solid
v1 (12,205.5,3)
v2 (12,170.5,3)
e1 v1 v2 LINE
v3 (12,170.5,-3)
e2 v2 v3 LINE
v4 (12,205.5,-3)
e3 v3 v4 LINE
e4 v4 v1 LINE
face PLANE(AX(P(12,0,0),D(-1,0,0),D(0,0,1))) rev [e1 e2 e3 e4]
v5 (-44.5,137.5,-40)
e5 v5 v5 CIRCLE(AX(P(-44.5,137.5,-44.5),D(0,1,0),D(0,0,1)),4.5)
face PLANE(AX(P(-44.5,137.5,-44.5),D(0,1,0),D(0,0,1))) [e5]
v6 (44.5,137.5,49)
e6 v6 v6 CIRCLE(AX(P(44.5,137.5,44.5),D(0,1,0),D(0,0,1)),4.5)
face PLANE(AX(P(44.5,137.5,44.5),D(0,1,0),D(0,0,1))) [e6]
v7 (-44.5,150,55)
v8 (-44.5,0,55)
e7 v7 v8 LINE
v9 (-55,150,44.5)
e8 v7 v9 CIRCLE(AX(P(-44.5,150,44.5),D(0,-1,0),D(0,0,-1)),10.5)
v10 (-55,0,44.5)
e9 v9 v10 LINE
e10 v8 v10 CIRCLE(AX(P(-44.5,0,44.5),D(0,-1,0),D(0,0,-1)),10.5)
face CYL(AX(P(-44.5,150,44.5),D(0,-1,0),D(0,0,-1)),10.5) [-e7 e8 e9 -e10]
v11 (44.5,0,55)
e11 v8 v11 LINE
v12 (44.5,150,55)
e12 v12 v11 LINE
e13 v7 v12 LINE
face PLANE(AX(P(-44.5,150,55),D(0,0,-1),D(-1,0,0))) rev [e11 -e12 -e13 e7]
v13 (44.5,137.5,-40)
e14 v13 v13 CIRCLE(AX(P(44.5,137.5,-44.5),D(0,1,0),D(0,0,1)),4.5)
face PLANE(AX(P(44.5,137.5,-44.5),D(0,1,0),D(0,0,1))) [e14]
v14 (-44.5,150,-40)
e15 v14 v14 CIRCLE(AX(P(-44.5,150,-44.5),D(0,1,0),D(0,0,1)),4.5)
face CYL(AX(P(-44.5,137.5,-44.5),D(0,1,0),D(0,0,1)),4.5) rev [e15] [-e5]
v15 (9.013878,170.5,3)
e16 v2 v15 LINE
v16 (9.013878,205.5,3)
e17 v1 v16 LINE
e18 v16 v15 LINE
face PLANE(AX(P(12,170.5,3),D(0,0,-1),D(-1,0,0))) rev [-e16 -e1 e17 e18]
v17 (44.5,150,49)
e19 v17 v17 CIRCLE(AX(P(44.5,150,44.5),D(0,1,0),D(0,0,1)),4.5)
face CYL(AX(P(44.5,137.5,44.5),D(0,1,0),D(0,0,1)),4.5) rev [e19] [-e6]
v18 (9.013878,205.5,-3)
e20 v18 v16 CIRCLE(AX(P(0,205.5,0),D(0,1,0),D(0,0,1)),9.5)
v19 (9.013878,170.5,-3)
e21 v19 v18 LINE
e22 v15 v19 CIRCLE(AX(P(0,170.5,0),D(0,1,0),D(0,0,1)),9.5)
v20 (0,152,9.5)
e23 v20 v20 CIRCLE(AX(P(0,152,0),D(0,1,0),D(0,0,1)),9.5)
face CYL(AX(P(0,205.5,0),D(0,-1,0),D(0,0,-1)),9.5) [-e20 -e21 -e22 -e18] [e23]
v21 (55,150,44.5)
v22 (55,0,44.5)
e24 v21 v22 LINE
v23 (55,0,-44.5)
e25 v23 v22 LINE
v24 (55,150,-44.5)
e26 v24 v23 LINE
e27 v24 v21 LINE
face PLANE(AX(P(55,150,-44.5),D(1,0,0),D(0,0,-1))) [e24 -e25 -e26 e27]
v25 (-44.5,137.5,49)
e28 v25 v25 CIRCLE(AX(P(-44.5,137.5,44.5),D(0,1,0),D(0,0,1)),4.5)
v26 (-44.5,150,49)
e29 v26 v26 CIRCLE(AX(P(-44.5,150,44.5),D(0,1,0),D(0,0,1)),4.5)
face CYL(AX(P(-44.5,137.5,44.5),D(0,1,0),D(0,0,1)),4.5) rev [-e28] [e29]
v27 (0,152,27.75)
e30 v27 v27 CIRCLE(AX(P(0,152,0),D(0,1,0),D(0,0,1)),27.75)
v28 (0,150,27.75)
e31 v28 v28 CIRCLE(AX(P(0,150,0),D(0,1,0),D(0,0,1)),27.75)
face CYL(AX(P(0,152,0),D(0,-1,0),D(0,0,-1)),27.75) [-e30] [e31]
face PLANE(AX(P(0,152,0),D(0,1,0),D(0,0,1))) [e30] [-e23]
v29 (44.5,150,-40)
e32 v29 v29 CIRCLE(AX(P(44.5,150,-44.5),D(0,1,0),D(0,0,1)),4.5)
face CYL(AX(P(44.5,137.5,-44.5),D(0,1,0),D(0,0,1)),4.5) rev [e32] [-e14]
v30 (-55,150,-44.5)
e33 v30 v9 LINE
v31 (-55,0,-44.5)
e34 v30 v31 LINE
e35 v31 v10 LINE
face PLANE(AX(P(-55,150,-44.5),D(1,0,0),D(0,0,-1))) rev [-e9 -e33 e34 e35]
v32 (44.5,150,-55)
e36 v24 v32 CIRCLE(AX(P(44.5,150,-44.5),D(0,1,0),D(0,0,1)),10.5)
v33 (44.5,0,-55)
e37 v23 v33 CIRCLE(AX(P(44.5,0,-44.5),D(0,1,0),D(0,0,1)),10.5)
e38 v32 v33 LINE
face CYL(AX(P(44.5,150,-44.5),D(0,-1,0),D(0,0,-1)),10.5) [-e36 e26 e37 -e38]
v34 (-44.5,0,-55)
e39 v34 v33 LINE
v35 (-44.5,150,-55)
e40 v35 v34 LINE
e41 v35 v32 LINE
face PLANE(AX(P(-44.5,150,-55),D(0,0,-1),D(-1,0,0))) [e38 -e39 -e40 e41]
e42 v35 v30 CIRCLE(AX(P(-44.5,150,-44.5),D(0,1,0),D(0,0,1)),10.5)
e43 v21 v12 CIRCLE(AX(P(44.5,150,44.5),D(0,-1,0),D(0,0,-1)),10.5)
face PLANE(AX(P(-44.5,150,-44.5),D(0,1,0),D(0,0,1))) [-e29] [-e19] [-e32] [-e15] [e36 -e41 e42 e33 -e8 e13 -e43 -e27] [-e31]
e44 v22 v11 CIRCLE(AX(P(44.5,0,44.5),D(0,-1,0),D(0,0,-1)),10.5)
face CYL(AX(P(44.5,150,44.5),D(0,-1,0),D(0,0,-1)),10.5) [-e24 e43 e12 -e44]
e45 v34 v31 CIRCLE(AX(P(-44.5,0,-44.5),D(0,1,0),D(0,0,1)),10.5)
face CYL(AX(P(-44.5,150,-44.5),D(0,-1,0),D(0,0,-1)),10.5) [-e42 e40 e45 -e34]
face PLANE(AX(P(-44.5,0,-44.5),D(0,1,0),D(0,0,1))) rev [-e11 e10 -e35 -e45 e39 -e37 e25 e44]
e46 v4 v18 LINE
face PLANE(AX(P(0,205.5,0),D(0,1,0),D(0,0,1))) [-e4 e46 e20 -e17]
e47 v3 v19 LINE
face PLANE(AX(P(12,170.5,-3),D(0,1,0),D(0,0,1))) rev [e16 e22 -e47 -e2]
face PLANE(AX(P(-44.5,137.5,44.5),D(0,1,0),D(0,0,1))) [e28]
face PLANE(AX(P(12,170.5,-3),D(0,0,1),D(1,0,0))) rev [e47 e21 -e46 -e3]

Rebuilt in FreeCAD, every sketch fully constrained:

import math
import FreeCAD as App
import Part
import Sketcher

V = App.Vector
Q = App.Units.Quantity

doc = App.newDocument("Part")
body = doc.addObject("PartDesign::Body", "Body")

sketch1 = doc.addObject("Sketcher::SketchObject", "Sketch")
body.addObject(sketch1)
sketch1.AttachmentSupport = (doc.XZ_Plane, [""])
sketch1.MapMode = "FlatFace"
sketch1.addGeometry(Part.LineSegment(V(44, -55, 0), V(-44, -55, 0)), False)
sketch1.addGeometry(Part.ArcOfCircle(Part.Circle(V(-44, -44, 0), V(0, 0, 1), 11), math.radians(-180), math.radians(-90)), False)
sketch1.addGeometry(Part.LineSegment(V(-55, -44, 0), V(-55, 44, 0)), False)
sketch1.addGeometry(Part.ArcOfCircle(Part.Circle(V(-44, 44, 0), V(0, 0, 1), 11), math.radians(90), math.radians(180)), False)
sketch1.addGeometry(Part.LineSegment(V(-44, 55, 0), V(44, 55, 0)), False)
sketch1.addGeometry(Part.ArcOfCircle(Part.Circle(V(44, 44, 0), V(0, 0, 1), 11), math.radians(0), math.radians(90)), False)
sketch1.addGeometry(Part.LineSegment(V(55, 44, 0), V(55, -44, 0)), False)
sketch1.addGeometry(Part.ArcOfCircle(Part.Circle(V(44, -44, 0), V(0, 0, 1), 11), math.radians(-90), math.radians(0)), False)
sketch1.addConstraint(Sketcher.Constraint("Tangent", 0, 2, 1, 2))
sketch1.addConstraint(Sketcher.Constraint("Tangent", 1, 1, 2, 1))
sketch1.addConstraint(Sketcher.Constraint("Tangent", 2, 2, 3, 2))
sketch1.addConstraint(Sketcher.Constraint("Tangent", 3, 1, 4, 1))
sketch1.addConstraint(Sketcher.Constraint("Tangent", 4, 2, 5, 2))
sketch1.addConstraint(Sketcher.Constraint("Tangent", 5, 1, 6, 1))
sketch1.addConstraint(Sketcher.Constraint("Tangent", 6, 2, 7, 2))
sketch1.addConstraint(Sketcher.Constraint("Tangent", 7, 1, 0, 1))
sketch1.addConstraint(Sketcher.Constraint("Horizontal", 0))
sketch1.addConstraint(Sketcher.Constraint("Vertical", 2))
sketch1.addConstraint(Sketcher.Constraint("Horizontal", 4))
sketch1.addConstraint(Sketcher.Constraint("Vertical", 6))
sketch1.addConstraint(Sketcher.Constraint("Equal", 1, 3))
sketch1.addConstraint(Sketcher.Constraint("Equal", 3, 5))
sketch1.addConstraint(Sketcher.Constraint("Equal", 5, 7))
sketch1.addConstraint(Sketcher.Constraint("Symmetric", 1, 3, 5, 3, -1, 1))
sketch1.addConstraint(Sketcher.Constraint("Equal", 4, 2))
sketch1.addConstraint(Sketcher.Constraint("Radius", 1, Q("10.5 mm")))
sketch1.addConstraint(Sketcher.Constraint("DistanceX", 0, 2, 0, 1, Q("89 mm")))
pad1 = doc.addObject("PartDesign::Pad", "Pad")
body.addObject(pad1)
pad1.Profile = sketch1
pad1.Length = 150
pad1.Reversed = True

sketch2 = doc.addObject("Sketcher::SketchObject", "Sketch001")
body.addObject(sketch2)
sketch2.AttachmentSupport = (doc.XZ_Plane, [""])
sketch2.MapMode = "FlatFace"
sketch2.AttachmentOffset = App.Placement(V(0, 0, -150), App.Rotation())
sketch2.addGeometry(Part.Circle(V(-44.5, -44.5, 0), V(0, 0, 1), 4.5), False)
sketch2.addGeometry(Part.Circle(V(44.5, -44.5, 0), V(0, 0, 1), 4.5), False)
sketch2.addGeometry(Part.Circle(V(-44.5, 44.5, 0), V(0, 0, 1), 4.5), False)
sketch2.addGeometry(Part.Circle(V(44.5, 44.5, 0), V(0, 0, 1), 4.5), False)
sketch2.addConstraint(Sketcher.Constraint("Equal", 0, 1))
sketch2.addConstraint(Sketcher.Constraint("Equal", 1, 2))
sketch2.addConstraint(Sketcher.Constraint("Equal", 2, 3))
sketch2.addConstraint(Sketcher.Constraint("Symmetric", 1, 3, 2, 3, -1, 1))
sketch2.addConstraint(Sketcher.Constraint("Symmetric", 0, 3, 3, 3, -1, 1))
sketch2.addConstraint(Sketcher.Constraint("Symmetric", 0, 3, 1, 3, -2))
sketch2.addConstraint(Sketcher.Constraint("Diameter", 0, Q("9 mm")))
sketch2.addConstraint(Sketcher.Constraint("DistanceX", 0, 3, 1, 3, Q("89 mm")))
sketch2.addConstraint(Sketcher.Constraint("DistanceY", 0, 3, 2, 3, Q("89 mm")))
pocket1 = doc.addObject("PartDesign::Pocket", "Pocket")
body.addObject(pocket1)
pocket1.Profile = sketch2
pocket1.Length = 12.5
pocket1.Reversed = True

sketch3 = doc.addObject("Sketcher::SketchObject", "Sketch002")
body.addObject(sketch3)
sketch3.AttachmentSupport = (doc.XZ_Plane, [""])
sketch3.MapMode = "FlatFace"
sketch3.AttachmentOffset = App.Placement(V(0, 0, -150), App.Rotation())
sketch3.addGeometry(Part.Circle(V(0, 0, 0), V(0, 0, 1), 10), False)
sketch3.addConstraint(Sketcher.Constraint("Coincident", 0, 3, -1, 1))
sketch3.addConstraint(Sketcher.Constraint("Diameter", 0, Q("19 mm")))
pad2 = doc.addObject("PartDesign::Pad", "Pad001")
body.addObject(pad2)
pad2.Profile = sketch3
pad2.Length = 55.5
pad2.Reversed = True

sketch4 = doc.addObject("Sketcher::SketchObject", "Sketch003")
body.addObject(sketch4)
sketch4.AttachmentSupport = (doc.XZ_Plane, [""])
sketch4.MapMode = "FlatFace"
sketch4.AttachmentOffset = App.Placement(V(0, 0, -150), App.Rotation())
sketch4.addGeometry(Part.Circle(V(0, 0, 0), V(0, 0, 1), 28), False)
sketch4.addConstraint(Sketcher.Constraint("Coincident", 0, 3, -1, 1))
sketch4.addConstraint(Sketcher.Constraint("Diameter", 0, Q("55.5 mm")))
pad3 = doc.addObject("PartDesign::Pad", "Pad002")
body.addObject(pad3)
pad3.Profile = sketch4
pad3.Length = 2
pad3.Reversed = True

sketch5 = doc.addObject("Sketcher::SketchObject", "Sketch004")
body.addObject(sketch5)
sketch5.AttachmentSupport = (doc.YZ_Plane, [""])
sketch5.MapMode = "FlatFace"
sketch5.addGeometry(Part.LineSegment(V(206, 3, 0), V(170, 3, 0)), False)
sketch5.addGeometry(Part.LineSegment(V(170, 3, 0), V(170, -3, 0)), False)
sketch5.addGeometry(Part.LineSegment(V(170, -3, 0), V(206, -3, 0)), False)
sketch5.addGeometry(Part.LineSegment(V(206, -3, 0), V(206, 3, 0)), False)
sketch5.addConstraint(Sketcher.Constraint("Coincident", 0, 2, 1, 1))
sketch5.addConstraint(Sketcher.Constraint("Coincident", 1, 2, 2, 1))
sketch5.addConstraint(Sketcher.Constraint("Coincident", 2, 2, 3, 1))
sketch5.addConstraint(Sketcher.Constraint("Coincident", 3, 2, 0, 1))
sketch5.addConstraint(Sketcher.Constraint("Horizontal", 0))
sketch5.addConstraint(Sketcher.Constraint("Vertical", 1))
sketch5.addConstraint(Sketcher.Constraint("Horizontal", 2))
sketch5.addConstraint(Sketcher.Constraint("Vertical", 3))
sketch5.addConstraint(Sketcher.Constraint("DistanceX", 0, 2, 0, 1, Q("35 mm")))
sketch5.addConstraint(Sketcher.Constraint("DistanceY", 1, 2, 1, 1, Q("6 mm")))
sketch5.addConstraint(Sketcher.Constraint("DistanceY", -1, 1, 0, 2, Q("3 mm")))
sketch5.addConstraint(Sketcher.Constraint("DistanceX", -1, 1, 0, 2, Q("170.5 mm")))
pad4 = doc.addObject("PartDesign::Pad", "Pad003")
body.addObject(pad4)
pad4.Profile = sketch5
pad4.Length = 12

doc.recompute()
